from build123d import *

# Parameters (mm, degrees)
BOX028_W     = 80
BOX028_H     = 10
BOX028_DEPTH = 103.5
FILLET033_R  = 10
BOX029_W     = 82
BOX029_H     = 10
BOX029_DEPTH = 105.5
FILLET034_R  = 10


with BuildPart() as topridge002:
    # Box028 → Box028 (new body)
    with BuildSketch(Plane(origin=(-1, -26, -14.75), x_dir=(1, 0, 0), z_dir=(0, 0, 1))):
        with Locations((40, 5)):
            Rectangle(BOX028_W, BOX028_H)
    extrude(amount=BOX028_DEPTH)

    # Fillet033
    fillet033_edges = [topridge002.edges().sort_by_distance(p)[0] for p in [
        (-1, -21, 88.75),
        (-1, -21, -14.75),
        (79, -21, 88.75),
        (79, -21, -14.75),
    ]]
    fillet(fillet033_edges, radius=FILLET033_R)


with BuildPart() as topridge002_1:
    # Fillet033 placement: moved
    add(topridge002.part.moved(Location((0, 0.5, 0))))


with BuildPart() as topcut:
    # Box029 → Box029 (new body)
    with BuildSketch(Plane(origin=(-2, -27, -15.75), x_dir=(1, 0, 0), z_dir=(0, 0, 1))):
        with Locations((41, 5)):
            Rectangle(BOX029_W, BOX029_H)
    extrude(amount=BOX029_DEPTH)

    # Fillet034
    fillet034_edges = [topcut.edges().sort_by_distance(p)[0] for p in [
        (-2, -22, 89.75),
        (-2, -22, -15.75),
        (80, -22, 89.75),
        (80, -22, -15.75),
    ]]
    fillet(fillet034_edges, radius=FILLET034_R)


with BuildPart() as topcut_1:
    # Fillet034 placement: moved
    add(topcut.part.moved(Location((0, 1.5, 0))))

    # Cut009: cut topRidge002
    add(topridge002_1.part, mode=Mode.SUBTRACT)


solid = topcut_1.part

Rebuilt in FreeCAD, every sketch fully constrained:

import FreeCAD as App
import Part
import Sketcher
from FreeCAD import Vector
Q = App.Units.Quantity


def edges_at(feature, points):
    """Names of the edges that pass closest to the given points."""
    edges = feature.Shape.Edges
    near = lambda p: min(range(len(edges)), key=lambda i: edges[i].distToShape(Part.Vertex(*p))[0])
    return sorted({f"Edge{near(p) + 1}" for p in points})


def add_polygon(sketch, points):
    """Adds a closed chain of lines whose ends are joined by coincident constraints."""
    first, n = sketch.GeometryCount, len(points)
    for a, b in zip(points, points[1:] + points[:1]):
        sketch.addGeometry(Part.LineSegment(App.Vector(*a, 0), App.Vector(*b, 0)), False)
    for i in range(n):
        sketch.addConstraint(Sketcher.Constraint("Coincident", first + i, 2, first + (i + 1) % n, 1))

doc = App.newDocument("Part")
body = doc.addObject("PartDesign::Body", "Body")

# Sketch on XY plane
sketch1 = body.newObject("Sketcher::SketchObject", "Sketch")
sketch1.AttachmentSupport = (doc.getObject("XY_Plane"), [""])
sketch1.MapMode = "FlatFace"
sketch1.AttachmentOffset = App.Placement(Vector(0, 0, -14.75), App.Rotation())
add_polygon(sketch1, [(-1, -16), (-1, -26), (79, -26), (79, -16)])  # lines 0-3
sketch1.addConstraint(Sketcher.Constraint("Vertical", 0))
sketch1.addConstraint(Sketcher.Constraint("Horizontal", 1))
sketch1.addConstraint(Sketcher.Constraint("Vertical", 2))
sketch1.addConstraint(Sketcher.Constraint("Horizontal", 3))
sketch1.addConstraint(Sketcher.Constraint("DistanceX", 1, 1, 1, 2, Q("80 mm")))
sketch1.addConstraint(Sketcher.Constraint("DistanceY", 0, 2, 0, 1, Q("10 mm")))
sketch1.addConstraint(Sketcher.Constraint("DistanceX", 0, 2, -1, 1, Q("1 mm")))
sketch1.addConstraint(Sketcher.Constraint("DistanceY", 0, 2, -1, 1, Q("26 mm")))
pad1 = body.newObject("PartDesign::Pad", "Pad")
pad1.Profile = sketch1
pad1.Length = 103.5
doc.recompute()

fillet = body.newObject("PartDesign::Fillet", "Fillet")
fillet.Base = (pad1, edges_at(pad1, [
    (-1, -21, 88.75),
    (-1, -21, -14.75),
    (79, -21, 88.75),
    (79, -21, -14.75),
]))
fillet.Radius = 10
body2 = doc.addObject("PartDesign::Body", "Body001")
doc.recompute()

body.Placement = App.Placement(Vector(0, 0.5, 0), App.Rotation(Vector(0, 0, 1), 0))
boolean = body2.newObject("PartDesign::Boolean", "Boolean")
boolean.Type = "Fuse"
boolean.addObjects([body])
body3 = doc.addObject("PartDesign::Body", "Body002")

# Sketch on XY plane
sketch2 = body3.newObject("Sketcher::SketchObject", "Sketch001")
sketch2.AttachmentSupport = (doc.getObject("XY_Plane002"), [""])
sketch2.MapMode = "FlatFace"
sketch2.AttachmentOffset = App.Placement(Vector(0, 0, -15.75), App.Rotation())
add_polygon(sketch2, [(-2, -17), (-2, -27), (80, -27), (80, -17)])  # lines 0-3
sketch2.addConstraint(Sketcher.Constraint("Vertical", 0))
sketch2.addConstraint(Sketcher.Constraint("Horizontal", 1))
sketch2.addConstraint(Sketcher.Constraint("Vertical", 2))
sketch2.addConstraint(Sketcher.Constraint("Horizontal", 3))
sketch2.addConstraint(Sketcher.Constraint("DistanceX", 1, 1, 1, 2, Q("82 mm")))
sketch2.addConstraint(Sketcher.Constraint("DistanceY", 0, 2, 0, 1, Q("10 mm")))
sketch2.addConstraint(Sketcher.Constraint("DistanceX", 0, 2, -1, 1, Q("2 mm")))
sketch2.addConstraint(Sketcher.Constraint("DistanceY", 0, 2, -1, 1, Q("27 mm")))
pad2 = body3.newObject("PartDesign::Pad", "Pad001")
pad2.Profile = sketch2
pad2.Length = 105.5
doc.recompute()

fillet2 = body3.newObject("PartDesign::Fillet", "Fillet001")
fillet2.Base = (pad2, edges_at(pad2, [
    (-2, -22, 89.75),
    (-2, -22, -15.75),
    (80, -22, 89.75),
    (80, -22, -15.75),
]))
fillet2.Radius = 10
body4 = doc.addObject("PartDesign::Body", "Body003")
doc.recompute()

body3.Placement = App.Placement(Vector(0, 1.5, 0), App.Rotation(Vector(0, 0, 1), 0))
boolean2 = body4.newObject("PartDesign::Boolean", "Boolean001")
boolean2.Type = "Fuse"
boolean2.addObjects([body3])
doc.recompute()

boolean3 = body4.newObject("PartDesign::Boolean", "Boolean002")
boolean3.Type = "Cut"
boolean3.addObjects([body2])

doc.recompute()
